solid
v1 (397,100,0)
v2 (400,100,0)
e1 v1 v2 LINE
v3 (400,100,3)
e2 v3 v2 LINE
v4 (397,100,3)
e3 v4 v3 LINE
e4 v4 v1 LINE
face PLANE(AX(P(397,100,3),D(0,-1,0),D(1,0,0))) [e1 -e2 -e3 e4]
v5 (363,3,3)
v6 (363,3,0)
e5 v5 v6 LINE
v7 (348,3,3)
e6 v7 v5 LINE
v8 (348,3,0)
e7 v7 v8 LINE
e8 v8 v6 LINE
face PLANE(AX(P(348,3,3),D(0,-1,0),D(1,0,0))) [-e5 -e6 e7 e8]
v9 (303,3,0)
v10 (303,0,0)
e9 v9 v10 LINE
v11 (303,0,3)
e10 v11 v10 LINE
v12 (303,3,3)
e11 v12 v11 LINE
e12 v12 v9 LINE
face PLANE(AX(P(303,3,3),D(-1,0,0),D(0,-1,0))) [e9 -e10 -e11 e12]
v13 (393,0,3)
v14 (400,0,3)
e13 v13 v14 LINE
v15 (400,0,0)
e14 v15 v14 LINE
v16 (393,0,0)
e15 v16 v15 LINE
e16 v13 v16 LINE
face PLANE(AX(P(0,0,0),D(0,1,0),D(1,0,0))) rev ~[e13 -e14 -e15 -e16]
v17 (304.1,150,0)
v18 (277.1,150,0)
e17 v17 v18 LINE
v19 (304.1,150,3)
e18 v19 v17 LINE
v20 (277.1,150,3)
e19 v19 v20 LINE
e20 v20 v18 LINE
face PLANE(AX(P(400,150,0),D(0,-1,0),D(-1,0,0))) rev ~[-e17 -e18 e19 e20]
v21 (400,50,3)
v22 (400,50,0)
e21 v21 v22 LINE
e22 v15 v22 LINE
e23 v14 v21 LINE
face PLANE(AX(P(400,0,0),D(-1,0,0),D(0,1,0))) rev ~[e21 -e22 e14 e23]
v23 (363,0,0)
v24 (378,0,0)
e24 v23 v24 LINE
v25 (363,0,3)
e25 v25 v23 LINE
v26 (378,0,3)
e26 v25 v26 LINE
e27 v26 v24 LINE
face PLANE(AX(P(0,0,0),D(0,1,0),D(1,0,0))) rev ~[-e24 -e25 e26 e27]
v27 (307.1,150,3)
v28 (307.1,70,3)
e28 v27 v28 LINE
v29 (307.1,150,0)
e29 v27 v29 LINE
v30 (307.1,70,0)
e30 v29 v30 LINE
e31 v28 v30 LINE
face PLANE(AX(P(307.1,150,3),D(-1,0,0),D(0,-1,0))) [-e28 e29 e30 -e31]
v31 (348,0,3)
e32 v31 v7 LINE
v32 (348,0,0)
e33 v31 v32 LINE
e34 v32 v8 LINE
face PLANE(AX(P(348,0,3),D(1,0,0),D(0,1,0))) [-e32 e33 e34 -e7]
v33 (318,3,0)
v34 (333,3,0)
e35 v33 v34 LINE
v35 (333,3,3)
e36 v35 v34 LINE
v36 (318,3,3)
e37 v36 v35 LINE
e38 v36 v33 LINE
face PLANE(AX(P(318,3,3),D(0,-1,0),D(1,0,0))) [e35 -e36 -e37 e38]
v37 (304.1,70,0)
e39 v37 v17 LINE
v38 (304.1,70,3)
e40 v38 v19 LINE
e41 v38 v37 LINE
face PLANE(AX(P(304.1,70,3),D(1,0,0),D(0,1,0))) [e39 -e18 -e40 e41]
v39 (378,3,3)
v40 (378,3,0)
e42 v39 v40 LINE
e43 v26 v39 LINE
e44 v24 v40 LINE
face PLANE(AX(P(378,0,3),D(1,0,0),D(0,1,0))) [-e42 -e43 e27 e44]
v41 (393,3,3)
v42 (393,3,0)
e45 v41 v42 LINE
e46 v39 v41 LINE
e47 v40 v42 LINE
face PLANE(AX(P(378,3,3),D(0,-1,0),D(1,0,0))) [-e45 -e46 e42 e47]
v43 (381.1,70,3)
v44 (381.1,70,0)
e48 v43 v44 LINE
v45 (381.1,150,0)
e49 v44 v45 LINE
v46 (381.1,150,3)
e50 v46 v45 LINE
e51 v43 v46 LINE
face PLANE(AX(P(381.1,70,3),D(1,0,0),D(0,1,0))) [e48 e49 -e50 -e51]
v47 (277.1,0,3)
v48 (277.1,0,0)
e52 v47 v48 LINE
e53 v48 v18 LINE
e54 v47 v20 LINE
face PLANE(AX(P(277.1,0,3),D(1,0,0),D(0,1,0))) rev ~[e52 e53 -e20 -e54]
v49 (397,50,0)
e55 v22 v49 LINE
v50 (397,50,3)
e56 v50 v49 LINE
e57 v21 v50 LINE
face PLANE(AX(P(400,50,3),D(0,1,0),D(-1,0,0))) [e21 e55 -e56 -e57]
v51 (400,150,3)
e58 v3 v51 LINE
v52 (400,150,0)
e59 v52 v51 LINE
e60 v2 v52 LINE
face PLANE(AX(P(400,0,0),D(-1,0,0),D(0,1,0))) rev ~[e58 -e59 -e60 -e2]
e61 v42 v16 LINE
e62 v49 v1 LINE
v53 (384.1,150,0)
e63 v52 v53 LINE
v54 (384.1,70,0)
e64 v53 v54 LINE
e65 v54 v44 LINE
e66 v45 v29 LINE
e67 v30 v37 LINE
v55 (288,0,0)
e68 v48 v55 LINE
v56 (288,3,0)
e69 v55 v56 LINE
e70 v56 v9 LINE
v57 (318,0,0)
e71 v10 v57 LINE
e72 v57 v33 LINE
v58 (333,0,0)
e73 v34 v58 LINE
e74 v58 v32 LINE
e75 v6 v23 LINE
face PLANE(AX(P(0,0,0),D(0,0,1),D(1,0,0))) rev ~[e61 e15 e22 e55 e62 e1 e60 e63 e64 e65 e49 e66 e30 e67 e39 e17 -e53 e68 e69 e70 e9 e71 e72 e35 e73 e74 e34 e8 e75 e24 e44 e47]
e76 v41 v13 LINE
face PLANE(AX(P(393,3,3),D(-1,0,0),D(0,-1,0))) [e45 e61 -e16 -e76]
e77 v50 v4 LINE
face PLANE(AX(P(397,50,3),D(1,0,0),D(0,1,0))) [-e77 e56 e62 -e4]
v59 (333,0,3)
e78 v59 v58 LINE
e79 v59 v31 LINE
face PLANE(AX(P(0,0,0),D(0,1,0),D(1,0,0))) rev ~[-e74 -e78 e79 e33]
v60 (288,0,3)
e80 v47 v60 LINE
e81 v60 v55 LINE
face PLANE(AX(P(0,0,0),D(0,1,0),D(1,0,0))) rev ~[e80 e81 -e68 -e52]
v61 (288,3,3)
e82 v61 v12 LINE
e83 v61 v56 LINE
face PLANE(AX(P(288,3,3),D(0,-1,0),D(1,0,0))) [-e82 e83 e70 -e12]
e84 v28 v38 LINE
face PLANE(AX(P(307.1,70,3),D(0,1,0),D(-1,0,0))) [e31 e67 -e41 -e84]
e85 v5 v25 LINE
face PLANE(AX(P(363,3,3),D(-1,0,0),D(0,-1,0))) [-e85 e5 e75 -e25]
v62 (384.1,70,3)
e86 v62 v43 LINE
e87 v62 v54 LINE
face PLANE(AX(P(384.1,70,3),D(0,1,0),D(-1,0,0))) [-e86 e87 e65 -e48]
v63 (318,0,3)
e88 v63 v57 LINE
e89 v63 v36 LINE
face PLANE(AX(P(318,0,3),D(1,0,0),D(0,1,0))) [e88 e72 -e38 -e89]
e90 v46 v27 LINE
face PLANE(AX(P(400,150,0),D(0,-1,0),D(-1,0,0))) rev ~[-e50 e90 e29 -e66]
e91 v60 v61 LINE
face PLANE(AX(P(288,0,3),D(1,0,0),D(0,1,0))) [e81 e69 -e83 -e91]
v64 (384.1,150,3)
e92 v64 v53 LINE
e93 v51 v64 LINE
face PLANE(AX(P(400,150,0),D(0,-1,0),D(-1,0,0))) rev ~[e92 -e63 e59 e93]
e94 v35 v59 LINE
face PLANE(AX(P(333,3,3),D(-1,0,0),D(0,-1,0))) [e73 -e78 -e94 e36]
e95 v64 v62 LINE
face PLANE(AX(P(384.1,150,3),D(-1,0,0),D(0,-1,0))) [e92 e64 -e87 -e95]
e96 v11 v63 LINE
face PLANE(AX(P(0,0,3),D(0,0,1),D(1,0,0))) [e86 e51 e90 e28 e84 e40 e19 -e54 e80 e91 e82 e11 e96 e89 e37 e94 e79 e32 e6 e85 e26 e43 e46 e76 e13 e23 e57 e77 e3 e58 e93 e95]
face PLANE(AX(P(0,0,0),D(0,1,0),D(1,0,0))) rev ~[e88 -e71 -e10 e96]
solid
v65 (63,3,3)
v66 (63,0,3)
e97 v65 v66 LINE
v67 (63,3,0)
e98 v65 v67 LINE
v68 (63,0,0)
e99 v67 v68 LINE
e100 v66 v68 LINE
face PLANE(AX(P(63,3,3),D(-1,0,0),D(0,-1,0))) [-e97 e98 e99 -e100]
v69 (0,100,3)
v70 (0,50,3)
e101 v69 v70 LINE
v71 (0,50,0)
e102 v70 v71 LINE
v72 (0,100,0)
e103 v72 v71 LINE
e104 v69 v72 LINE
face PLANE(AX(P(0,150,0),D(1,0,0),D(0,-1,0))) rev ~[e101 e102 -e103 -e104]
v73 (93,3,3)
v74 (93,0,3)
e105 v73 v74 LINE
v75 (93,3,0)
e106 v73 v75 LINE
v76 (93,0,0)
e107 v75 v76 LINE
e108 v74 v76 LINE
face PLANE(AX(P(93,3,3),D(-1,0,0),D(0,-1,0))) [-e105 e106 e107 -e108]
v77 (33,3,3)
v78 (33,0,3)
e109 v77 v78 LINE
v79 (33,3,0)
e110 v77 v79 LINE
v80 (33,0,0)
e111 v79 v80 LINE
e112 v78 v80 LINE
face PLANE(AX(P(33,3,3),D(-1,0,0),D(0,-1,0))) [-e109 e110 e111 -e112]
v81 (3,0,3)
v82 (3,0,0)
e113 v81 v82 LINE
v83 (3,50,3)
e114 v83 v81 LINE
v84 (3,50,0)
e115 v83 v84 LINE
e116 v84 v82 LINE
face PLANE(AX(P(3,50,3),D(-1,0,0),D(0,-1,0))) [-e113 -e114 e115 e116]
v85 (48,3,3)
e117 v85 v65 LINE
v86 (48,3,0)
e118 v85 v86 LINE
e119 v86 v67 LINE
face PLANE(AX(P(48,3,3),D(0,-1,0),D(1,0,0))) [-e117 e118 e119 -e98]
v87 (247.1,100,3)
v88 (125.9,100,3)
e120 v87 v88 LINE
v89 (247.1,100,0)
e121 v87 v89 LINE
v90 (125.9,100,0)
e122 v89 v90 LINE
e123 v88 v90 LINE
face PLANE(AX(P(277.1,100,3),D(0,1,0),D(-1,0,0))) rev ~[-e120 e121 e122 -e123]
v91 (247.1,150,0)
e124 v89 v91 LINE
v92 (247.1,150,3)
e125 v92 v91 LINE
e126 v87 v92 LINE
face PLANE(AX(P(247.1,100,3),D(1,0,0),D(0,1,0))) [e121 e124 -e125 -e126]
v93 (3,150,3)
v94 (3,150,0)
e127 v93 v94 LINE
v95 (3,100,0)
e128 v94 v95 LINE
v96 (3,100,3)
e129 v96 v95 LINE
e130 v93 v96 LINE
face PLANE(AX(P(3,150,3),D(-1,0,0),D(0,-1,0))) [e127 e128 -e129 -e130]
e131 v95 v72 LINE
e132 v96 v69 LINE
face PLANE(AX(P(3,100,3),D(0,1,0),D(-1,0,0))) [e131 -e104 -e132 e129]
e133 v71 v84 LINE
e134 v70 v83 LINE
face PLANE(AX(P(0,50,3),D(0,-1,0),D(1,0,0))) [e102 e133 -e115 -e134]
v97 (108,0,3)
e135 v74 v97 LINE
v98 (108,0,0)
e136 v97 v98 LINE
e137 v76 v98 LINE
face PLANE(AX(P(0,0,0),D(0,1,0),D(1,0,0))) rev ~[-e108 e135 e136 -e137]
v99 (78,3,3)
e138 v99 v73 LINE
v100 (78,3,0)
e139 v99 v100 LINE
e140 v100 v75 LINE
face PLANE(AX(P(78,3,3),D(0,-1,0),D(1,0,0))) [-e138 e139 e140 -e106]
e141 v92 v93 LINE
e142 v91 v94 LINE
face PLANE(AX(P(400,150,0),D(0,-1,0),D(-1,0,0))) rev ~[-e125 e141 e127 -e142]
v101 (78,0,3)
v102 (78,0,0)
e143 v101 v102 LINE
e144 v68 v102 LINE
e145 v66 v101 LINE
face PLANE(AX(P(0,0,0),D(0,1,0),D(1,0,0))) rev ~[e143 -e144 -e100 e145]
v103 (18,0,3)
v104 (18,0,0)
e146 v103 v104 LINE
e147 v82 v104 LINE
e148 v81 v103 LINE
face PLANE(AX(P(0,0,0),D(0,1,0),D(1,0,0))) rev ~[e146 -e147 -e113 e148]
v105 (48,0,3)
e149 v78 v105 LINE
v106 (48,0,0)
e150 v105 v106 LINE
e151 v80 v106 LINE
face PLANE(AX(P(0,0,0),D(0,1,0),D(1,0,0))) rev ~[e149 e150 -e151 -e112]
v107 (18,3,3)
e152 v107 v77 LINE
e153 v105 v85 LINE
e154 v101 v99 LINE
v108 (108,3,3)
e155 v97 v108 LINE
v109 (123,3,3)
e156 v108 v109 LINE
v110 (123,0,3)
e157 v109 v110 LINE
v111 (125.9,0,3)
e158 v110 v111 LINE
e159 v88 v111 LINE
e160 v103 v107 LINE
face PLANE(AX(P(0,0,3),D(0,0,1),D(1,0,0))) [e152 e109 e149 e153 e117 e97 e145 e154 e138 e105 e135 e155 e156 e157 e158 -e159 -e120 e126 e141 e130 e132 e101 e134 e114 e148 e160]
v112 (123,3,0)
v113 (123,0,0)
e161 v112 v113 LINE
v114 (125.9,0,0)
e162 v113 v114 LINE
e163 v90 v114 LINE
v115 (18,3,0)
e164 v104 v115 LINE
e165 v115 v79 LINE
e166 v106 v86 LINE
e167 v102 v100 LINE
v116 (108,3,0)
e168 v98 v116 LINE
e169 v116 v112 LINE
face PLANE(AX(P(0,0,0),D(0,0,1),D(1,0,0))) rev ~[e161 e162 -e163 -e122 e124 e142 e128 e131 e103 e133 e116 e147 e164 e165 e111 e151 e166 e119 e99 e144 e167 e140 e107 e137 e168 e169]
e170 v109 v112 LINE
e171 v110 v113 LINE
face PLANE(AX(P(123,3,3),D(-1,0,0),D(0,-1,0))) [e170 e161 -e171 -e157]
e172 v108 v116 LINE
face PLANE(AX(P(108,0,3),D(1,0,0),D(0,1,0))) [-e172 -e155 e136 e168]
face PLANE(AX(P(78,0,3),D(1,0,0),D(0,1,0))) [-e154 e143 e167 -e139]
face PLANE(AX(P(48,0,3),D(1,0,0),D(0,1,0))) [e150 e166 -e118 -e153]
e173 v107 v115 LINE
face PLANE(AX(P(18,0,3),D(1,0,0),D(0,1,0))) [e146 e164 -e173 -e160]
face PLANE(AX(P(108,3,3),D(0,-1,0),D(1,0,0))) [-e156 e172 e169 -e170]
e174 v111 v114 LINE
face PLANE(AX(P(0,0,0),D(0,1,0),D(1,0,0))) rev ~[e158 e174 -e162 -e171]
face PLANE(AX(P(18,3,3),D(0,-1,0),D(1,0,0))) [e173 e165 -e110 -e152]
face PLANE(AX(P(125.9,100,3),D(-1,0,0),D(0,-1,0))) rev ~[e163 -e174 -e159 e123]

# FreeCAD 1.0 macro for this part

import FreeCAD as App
import Part
import Sketcher

V = App.Vector

doc = App.newDocument("Part")
body = doc.addObject("PartDesign::Body", "Body")
body.AllowCompound = True

sketch1 = body.newObject("Sketcher::SketchObject", "Sketch")
sketch1.AttachmentSupport = (doc.getObject("XY_Plane"), [""])
sketch1.MapMode = "FlatFace"
sketch1.addGeometry([
    Part.LineSegment(V(0, 150, 0), V(0, 0, 0)),
    Part.LineSegment(V(0, 0, 0), V(400, 0, 0)),
    Part.LineSegment(V(400, 0, 0), V(400, 150, 0)),
    Part.LineSegment(V(400, 150, 0), V(0, 150, 0)),
], False)
sketch1.addConstraint([
    Sketcher.Constraint("Coincident", 0, 2, 1, 1),
    Sketcher.Constraint("Coincident", 1, 2, 2, 1),
    Sketcher.Constraint("Coincident", 2, 2, 3, 1),
    Sketcher.Constraint("Coincident", 3, 2, 0, 1),
    Sketcher.Constraint("Vertical", 0),
    Sketcher.Constraint("Horizontal", 1),
    Sketcher.Constraint("Vertical", 2),
    Sketcher.Constraint("Horizontal", 3),
    Sketcher.Constraint("Coincident", 0, 2, -1, 1),
    Sketcher.Constraint("DistanceX", 1, 1, 1, 2, 400.0),
    Sketcher.Constraint("DistanceY", 0, 2, 0, 1, 150.0),
])
pad1 = body.newObject("PartDesign::Pad", "Pad")
pad1.Profile = sketch1
pad1.Length = 3

sketch2 = body.newObject("Sketcher::SketchObject", "Sketch001")
sketch2.AttachmentSupport = (doc.getObject("XY_Plane"), [""])
sketch2.MapMode = "FlatFace"
sketch2.AttachmentOffset = App.Placement(V(0, 0, 3), App.Rotation())
sketch2.addGeometry([
    Part.LineSegment(V(3, 50, 0), V(0, 50, 0)),
    Part.LineSegment(V(0, 50, 0), V(0, 0, 0)),
    Part.LineSegment(V(0, 0, 0), V(3, 0, 0)),
    Part.LineSegment(V(3, 0, 0), V(3, 50, 0)),
    Part.LineSegment(V(0, 150, 0), V(0, 100, 0)),
    Part.LineSegment(V(0, 100, 0), V(3, 100, 0)),
    Part.LineSegment(V(3, 100, 0), V(3, 150, 0)),
    Part.LineSegment(V(3, 150, 0), V(0, 150, 0)),
    Part.LineSegment(V(400, 100, 0), V(397, 100, 0)),
    Part.LineSegment(V(397, 100, 0), V(397, 50, 0)),
    Part.LineSegment(V(397, 50, 0), V(400, 50, 0)),
    Part.LineSegment(V(400, 50, 0), V(400, 100, 0)),
], False)
sketch2.addConstraint([
    Sketcher.Constraint("Coincident", 0, 2, 1, 1),
    Sketcher.Constraint("Coincident", 1, 2, 2, 1),
    Sketcher.Constraint("Coincident", 2, 2, 3, 1),
    Sketcher.Constraint("Coincident", 3, 2, 0, 1),
    Sketcher.Constraint("Coincident", 4, 2, 5, 1),
    Sketcher.Constraint("Coincident", 5, 2, 6, 1),
    Sketcher.Constraint("Coincident", 6, 2, 7, 1),
    Sketcher.Constraint("Coincident", 7, 2, 4, 1),
    Sketcher.Constraint("Coincident", 8, 2, 9, 1),
    Sketcher.Constraint("Coincident", 9, 2, 10, 1),
    Sketcher.Constraint("Coincident", 10, 2, 11, 1),
    Sketcher.Constraint("Coincident", 11, 2, 8, 1),
    Sketcher.Constraint("Horizontal", 0),
    Sketcher.Constraint("Vertical", 1),
    Sketcher.Constraint("Horizontal", 2),
    Sketcher.Constraint("Vertical", 3),
    Sketcher.Constraint("Vertical", 4),
    Sketcher.Constraint("Horizontal", 5),
    Sketcher.Constraint("Vertical", 6),
    Sketcher.Constraint("Horizontal", 7),
    Sketcher.Constraint("Horizontal", 8),
    Sketcher.Constraint("Vertical", 9),
    Sketcher.Constraint("Horizontal", 10),
    Sketcher.Constraint("Vertical", 11),
    Sketcher.Constraint("Coincident", 1, 2, -1, 1),
    Sketcher.Constraint("PointOnObject", 4, 2, -2),
    Sketcher.Constraint("Horizontal", 5, 2, 8, 2),
    Sketcher.Constraint("Horizontal", 3, 2, 9, 2),
    Sketcher.Constraint("Vertical", 3, 2, 5, 2),
    Sketcher.Constraint("Equal", 7, 8),
    Sketcher.Constraint("Equal", 3, 4),
    Sketcher.Constraint("Equal", 6, 9),
    Sketcher.Constraint("DistanceX", 0, 2, 0, 1, 3.0),
    Sketcher.Constraint("DistanceY", 1, 2, 1, 1, 50.0),
    Sketcher.Constraint("DistanceX", -1, 1, 8, 2, 397.0),
])
pocket1 = body.newObject("PartDesign::Pocket", "Pocket")
pocket1.Profile = sketch2
pocket1.Length = 3

sketch3 = body.newObject("Sketcher::SketchObject", "Sketch002")
sketch3.AttachmentSupport = (doc.getObject("XY_Plane"), [""])
sketch3.MapMode = "FlatFace"
sketch3.AttachmentOffset = App.Placement(V(0, 0, 3), App.Rotation())
sketch3.addGeometry([
    Part.LineSegment(V(277, 0, 0), V(277, 100, 0)),
    Part.LineSegment(V(277, 100, 0), V(126, 100, 0)),
    Part.LineSegment(V(126, 100, 0), V(126, 0, 0)),
    Part.LineSegment(V(126, 0, 0), V(277, 0, 0)),
], False)
sketch3.addConstraint([
    Sketcher.Constraint("Coincident", 0, 2, 1, 1),
    Sketcher.Constraint("Coincident", 1, 2, 2, 1),
    Sketcher.Constraint("Coincident", 2, 2, 3, 1),
    Sketcher.Constraint("Coincident", 3, 2, 0, 1),
    Sketcher.Constraint("Vertical", 0),
    Sketcher.Constraint("Horizontal", 1),
    Sketcher.Constraint("Vertical", 2),
    Sketcher.Constraint("Horizontal", 3),
    Sketcher.Constraint("PointOnObject", 2, 2, -1),
    Sketcher.Constraint("DistanceY", 0, 1, 0, 2, 100.0),
    Sketcher.Constraint("DistanceX", 1, 2, 1, 1, 151.2),
    Sketcher.Constraint("DistanceX", -1, 1, 0, 2, 277.1),
])
pocket2 = body.newObject("PartDesign::Pocket", "Pocket001")
pocket2.Profile = sketch3
pocket2.Length = 10

sketch4 = body.newObject("Sketcher::SketchObject", "Sketch003")
sketch4.AttachmentSupport = (doc.getObject("XY_Plane"), [""])
sketch4.MapMode = "FlatFace"
sketch4.AttachmentOffset = App.Placement(V(0, 0, 3), App.Rotation())
sketch4.addGeometry([
    Part.LineSegment(V(307.1, 150, 0), V(304.1, 150, 0)),
    Part.LineSegment(V(304.1, 150, 0), V(304.1, 70, 0)),
    Part.LineSegment(V(304.1, 70, 0), V(307.1, 70, 0)),
    Part.LineSegment(V(307.1, 70, 0), V(307.1, 150, 0)),
    Part.LineSegment(V(384.1, 150, 0), V(381.1, 150, 0)),
    Part.LineSegment(V(381.1, 150, 0), V(381.1, 70, 0)),
    Part.LineSegment(V(381.1, 70, 0), V(384.1, 70, 0)),
    Part.LineSegment(V(384.1, 70, 0), V(384.1, 150, 0)),
], False)
sketch4.addConstraint([
    Sketcher.Constraint("Coincident", 0, 2, 1, 1),
    Sketcher.Constraint("Coincident", 1, 2, 2, 1),
    Sketcher.Constraint("Coincident", 2, 2, 3, 1),
    Sketcher.Constraint("Coincident", 3, 2, 0, 1),
    Sketcher.Constraint("Coincident", 4, 2, 5, 1),
    Sketcher.Constraint("Coincident", 5, 2, 6, 1),
    Sketcher.Constraint("Coincident", 6, 2, 7, 1),
    Sketcher.Constraint("Coincident", 7, 2, 4, 1),
    Sketcher.Constraint("Horizontal", 0),
    Sketcher.Constraint("Vertical", 1),
    Sketcher.Constraint("Horizontal", 2),
    Sketcher.Constraint("Vertical", 3),
    Sketcher.Constraint("Horizontal", 4),
    Sketcher.Constraint("Vertical", 5),
    Sketcher.Constraint("Horizontal", 6),
    Sketcher.Constraint("Vertical", 7),
    Sketcher.Constraint("Horizontal", 3, 2, 4, 2),
    Sketcher.Constraint("Horizontal", 2, 2, 5, 2),
    Sketcher.Constraint("Equal", 2, 4),
    Sketcher.Constraint("DistanceX", 0, 2, 0, 1, 3.0),
    Sketcher.Constraint("DistanceY", 1, 2, 1, 1, 80.0),
    Sketcher.Constraint("DistanceX", 3, 2, 4, 2, 74.0),
    Sketcher.Constraint("DistanceY", -1, 1, 0, 2, 150.0),
    Sketcher.Constraint("DistanceX", -1, 1, 0, 2, 304.1),
])
pocket3 = body.newObject("PartDesign::Pocket", "Pocket002")
pocket3.Profile = sketch4
pocket3.Length = 10

sketch5 = body.newObject("Sketcher::SketchObject", "Sketch004")
sketch5.AttachmentSupport = (doc.getObject("XY_Plane"), [""])
sketch5.MapMode = "FlatFace"
sketch5.AttachmentOffset = App.Placement(V(0, 0, 3), App.Rotation())
sketch5.addGeometry([
    Part.LineSegment(V(247, 100, 0), V(277, 100, 0)),
    Part.LineSegment(V(277, 100, 0), V(277, 150, 0)),
    Part.LineSegment(V(277, 150, 0), V(247, 150, 0)),
    Part.LineSegment(V(247, 150, 0), V(247, 100, 0)),
], False)
sketch5.addConstraint([
    Sketcher.Constraint("Coincident", 0, 2, 1, 1),
    Sketcher.Constraint("Coincident", 1, 2, 2, 1),
    Sketcher.Constraint("Coincident", 2, 2, 3, 1),
    Sketcher.Constraint("Coincident", 3, 2, 0, 1),
    Sketcher.Constraint("Horizontal", 0),
    Sketcher.Constraint("Vertical", 1),
    Sketcher.Constraint("Horizontal", 2),
    Sketcher.Constraint("Vertical", 3),
    Sketcher.Constraint("DistanceX", 0, 1, 0, 2, 30.0),
    Sketcher.Constraint("DistanceY", 1, 1, 1, 2, 50.0),
    Sketcher.Constraint("DistanceY", -1, 1, 0, 2, 100.0),
    Sketcher.Constraint("DistanceX", -1, 1, 0, 2, 277.1),
])
pocket4 = body.newObject("PartDesign::Pocket", "Pocket003")
pocket4.Profile = sketch5
pocket4.Length = 10

sketch6 = body.newObject("Sketcher::SketchObject", "Sketch005")
sketch6.AttachmentSupport = (doc.getObject("XY_Plane"), [""])
sketch6.MapMode = "FlatFace"
sketch6.AttachmentOffset = App.Placement(V(0, 0, 3), App.Rotation())
sketch6.addGeometry([
    Part.LineSegment(V(33, 3, 0), V(18, 3, 0)),
    Part.LineSegment(V(18, 3, 0), V(18, 0, 0)),
    Part.LineSegment(V(18, 0, 0), V(33, 0, 0)),
    Part.LineSegment(V(33, 0, 0), V(33, 3, 0)),
    Part.LineSegment(V(48, 0, 0), V(63, 0, 0)),
    Part.LineSegment(V(63, 0, 0), V(63, 3, 0)),
    Part.LineSegment(V(63, 3, 0), V(48, 3, 0)),
    Part.LineSegment(V(48, 3, 0), V(48, 0, 0)),
    Part.LineSegment(V(78, 0, 0), V(93, 0, 0)),
    Part.LineSegment(V(93, 0, 0), V(93, 3, 0)),
    Part.LineSegment(V(93, 3, 0), V(78, 3, 0)),
    Part.LineSegment(V(78, 3, 0), V(78, 0, 0)),
    Part.LineSegment(V(108, 0, 0), V(123, 0, 0)),
    Part.LineSegment(V(123, 0, 0), V(123, 3, 0)),
    Part.LineSegment(V(123, 3, 0), V(108, 3, 0)),
    Part.LineSegment(V(108, 3, 0), V(108, 0, 0)),
    Part.LineSegment(V(138, 0, 0), V(153, 0, 0)),
    Part.LineSegment(V(153, 0, 0), V(153, 3, 0)),
    Part.LineSegment(V(153, 3, 0), V(138, 3, 0)),
    Part.LineSegment(V(138, 3, 0), V(138, 0, 0)),
    Part.LineSegment(V(168, 0, 0), V(183, 0, 0)),
    Part.LineSegment(V(183, 0, 0), V(183, 3, 0)),
    Part.LineSegment(V(183, 3, 0), V(168, 3, 0)),
    Part.LineSegment(V(168, 3, 0), V(168, 0, 0)),
    Part.LineSegment(V(198, 0, 0), V(213, 0, 0)),
    Part.LineSegment(V(213, 0, 0), V(213, 3, 0)),
    Part.LineSegment(V(213, 3, 0), V(198, 3, 0)),
    Part.LineSegment(V(198, 3, 0), V(198, 0, 0)),
    Part.LineSegment(V(228, 0, 0), V(243, 0, 0)),
    Part.LineSegment(V(243, 0, 0), V(243, 3, 0)),
    Part.LineSegment(V(243, 3, 0), V(228, 3, 0)),
    Part.LineSegment(V(228, 3, 0), V(228, 0, 0)),
    Part.LineSegment(V(258, 0, 0), V(273, 0, 0)),
    Part.LineSegment(V(273, 0, 0), V(273, 3, 0)),
    Part.LineSegment(V(273, 3, 0), V(258, 3, 0)),
    Part.LineSegment(V(258, 3, 0), V(258, 0, 0)),
    Part.LineSegment(V(288, 0, 0), V(303, 0, 0)),
    Part.LineSegment(V(303, 0, 0), V(303, 3, 0)),
    Part.LineSegment(V(303, 3, 0), V(288, 3, 0)),
    Part.LineSegment(V(288, 3, 0), V(288, 0, 0)),
    Part.LineSegment(V(318, 0, 0), V(333, 0, 0)),
    Part.LineSegment(V(333, 0, 0), V(333, 3, 0)),
    Part.LineSegment(V(333, 3, 0), V(318, 3, 0)),
    Part.LineSegment(V(318, 3, 0), V(318, 0, 0)),
    Part.LineSegment(V(348, 0, 0), V(363, 0, 0)),
    Part.LineSegment(V(363, 0, 0), V(363, 3, 0)),
    Part.LineSegment(V(363, 3, 0), V(348, 3, 0)),
    Part.LineSegment(V(348, 3, 0), V(348, 0, 0)),
    Part.LineSegment(V(378, 0, 0), V(393, 0, 0)),
    Part.LineSegment(V(393, 0, 0), V(393, 3, 0)),
    Part.LineSegment(V(393, 3, 0), V(378, 3, 0)),
    Part.LineSegment(V(378, 3, 0), V(378, 0, 0)),
], False)
sketch6.addConstraint([
    Sketcher.Constraint("Coincident", 0, 2, 1, 1),
    Sketcher.Constraint("Coincident", 1, 2, 2, 1),
    Sketcher.Constraint("Coincident", 2, 2, 3, 1),
    Sketcher.Constraint("Coincident", 3, 2, 0, 1),
    Sketcher.Constraint("Coincident", 4, 2, 5, 1),
    Sketcher.Constraint("Coincident", 5, 2, 6, 1),
    Sketcher.Constraint("Coincident", 6, 2, 7, 1),
    Sketcher.Constraint("Coincident", 7, 2, 4, 1),
    Sketcher.Constraint("Coincident", 8, 2, 9, 1),
    Sketcher.Constraint("Coincident", 9, 2, 10, 1),
    Sketcher.Constraint("Coincident", 10, 2, 11, 1),
    Sketcher.Constraint("Coincident", 11, 2, 8, 1),
    Sketcher.Constraint("Coincident", 12, 2, 13, 1),
    Sketcher.Constraint("Coincident", 13, 2, 14, 1),
    Sketcher.Constraint("Coincident", 14, 2, 15, 1),
    Sketcher.Constraint("Coincident", 15, 2, 12, 1),
    Sketcher.Constraint("Coincident", 16, 2, 17, 1),
    Sketcher.Constraint("Coincident", 17, 2, 18, 1),
    Sketcher.Constraint("Coincident", 18, 2, 19, 1),
    Sketcher.Constraint("Coincident", 19, 2, 16, 1),
    Sketcher.Constraint("Coincident", 20, 2, 21, 1),
    Sketcher.Constraint("Coincident", 21, 2, 22, 1),
    Sketcher.Constraint("Coincident", 22, 2, 23, 1),
    Sketcher.Constraint("Coincident", 23, 2, 20, 1),
    Sketcher.Constraint("Coincident", 24, 2, 25, 1),
    Sketcher.Constraint("Coincident", 25, 2, 26, 1),
    Sketcher.Constraint("Coincident", 26, 2, 27, 1),
    Sketcher.Constraint("Coincident", 27, 2, 24, 1),
    Sketcher.Constraint("Coincident", 28, 2, 29, 1),
    Sketcher.Constraint("Coincident", 29, 2, 30, 1),
    Sketcher.Constraint("Coincident", 30, 2, 31, 1),
    Sketcher.Constraint("Coincident", 31, 2, 28, 1),
    Sketcher.Constraint("Coincident", 32, 2, 33, 1),
    Sketcher.Constraint("Coincident", 33, 2, 34, 1),
    Sketcher.Constraint("Coincident", 34, 2, 35, 1),
    Sketcher.Constraint("Coincident", 35, 2, 32, 1),
    Sketcher.Constraint("Coincident", 36, 2, 37, 1),
    Sketcher.Constraint("Coincident", 37, 2, 38, 1),
    Sketcher.Constraint("Coincident", 38, 2, 39, 1),
    Sketcher.Constraint("Coincident", 39, 2, 36, 1),
    Sketcher.Constraint("Coincident", 40, 2, 41, 1),
    Sketcher.Constraint("Coincident", 41, 2, 42, 1),
    Sketcher.Constraint("Coincident", 42, 2, 43, 1),
    Sketcher.Constraint("Coincident", 43, 2, 40, 1),
    Sketcher.Constraint("Coincident", 44, 2, 45, 1),
    Sketcher.Constraint("Coincident", 45, 2, 46, 1),
    Sketcher.Constraint("Coincident", 46, 2, 47, 1),
    Sketcher.Constraint("Coincident", 47, 2, 44, 1),
    Sketcher.Constraint("Coincident", 48, 2, 49, 1),
    Sketcher.Constraint("Coincident", 49, 2, 50, 1),
    Sketcher.Constraint("Coincident", 50, 2, 51, 1),
    Sketcher.Constraint("Coincident", 51, 2, 48, 1),
    Sketcher.Constraint("Horizontal", 0),
    Sketcher.Constraint("Vertical", 1),
    Sketcher.Constraint("Horizontal", 2),
    Sketcher.Constraint("Vertical", 3),
    Sketcher.Constraint("Horizontal", 4),
    Sketcher.Constraint("Vertical", 5),
    Sketcher.Constraint("Horizontal", 6),
    Sketcher.Constraint("Vertical", 7),
    Sketcher.Constraint("Horizontal", 8),
    Sketcher.Constraint("Vertical", 9),
    Sketcher.Constraint("Horizontal", 10),
    Sketcher.Constraint("Vertical", 11),
    Sketcher.Constraint("Horizontal", 12),
    Sketcher.Constraint("Vertical", 13),
    Sketcher.Constraint("Horizontal", 14),
    Sketcher.Constraint("Vertical", 15),
    Sketcher.Constraint("Horizontal", 16),
    Sketcher.Constraint("Vertical", 17),
    Sketcher.Constraint("Horizontal", 18),
    Sketcher.Constraint("Vertical", 19),
    Sketcher.Constraint("Horizontal", 20),
    Sketcher.Constraint("Vertical", 21),
    Sketcher.Constraint("Horizontal", 22),
    Sketcher.Constraint("Vertical", 23),
    Sketcher.Constraint("Horizontal", 24),
    Sketcher.Constraint("Vertical", 25),
    Sketcher.Constraint("Horizontal", 26),
    Sketcher.Constraint("Vertical", 27),
    Sketcher.Constraint("Horizontal", 28),
    Sketcher.Constraint("Vertical", 29),
    Sketcher.Constraint("Horizontal", 30),
    Sketcher.Constraint("Vertical", 31),
    Sketcher.Constraint("Horizontal", 32),
    Sketcher.Constraint("Vertical", 33),
    Sketcher.Constraint("Horizontal", 34),
    Sketcher.Constraint("Vertical", 35),
    Sketcher.Constraint("Horizontal", 36),
    Sketcher.Constraint("Vertical", 37),
    Sketcher.Constraint("Horizontal", 38),
    Sketcher.Constraint("Vertical", 39),
    Sketcher.Constraint("Horizontal", 40),
    Sketcher.Constraint("Vertical", 41),
    Sketcher.Constraint("Horizontal", 42),
    Sketcher.Constraint("Vertical", 43),
    Sketcher.Constraint("Horizontal", 44),
    Sketcher.Constraint("Vertical", 45),
    Sketcher.Constraint("Horizontal", 46),
    Sketcher.Constraint("Vertical", 47),
    Sketcher.Constraint("Horizontal", 48),
    Sketcher.Constraint("Vertical", 49),
    Sketcher.Constraint("Horizontal", 50),
    Sketcher.Constraint("Vertical", 51),
    Sketcher.Constraint("PointOnObject", 1, 2, -1),
    Sketcher.Constraint("PointOnObject", 4, 2, -1),
    Sketcher.Constraint("PointOnObject", 8, 2, -1),
    Sketcher.Constraint("PointOnObject", 12, 2, -1),
    Sketcher.Constraint("PointOnObject", 16, 2, -1),
    Sketcher.Constraint("PointOnObject", 20, 2, -1),
    Sketcher.Constraint("PointOnObject", 24, 2, -1),
    Sketcher.Constraint("PointOnObject", 28, 2, -1),
    Sketcher.Constraint("PointOnObject", 32, 2, -1),
    Sketcher.Constraint("PointOnObject", 36, 2, -1),
    Sketcher.Constraint("PointOnObject", 40, 2, -1),
    Sketcher.Constraint("PointOnObject", 44, 2, -1),
    Sketcher.Constraint("PointOnObject", 48, 2, -1),
    Sketcher.Constraint("Horizontal", 3, 2, 5, 2),
    Sketcher.Constraint("Horizontal", 6, 2, 9, 2),
    Sketcher.Constraint("Horizontal", 10, 2, 13, 2),
    Sketcher.Constraint("Horizontal", 14, 2, 17, 2),
    Sketcher.Constraint("Horizontal", 18, 2, 21, 2),
    Sketcher.Constraint("Horizontal", 22, 2, 25, 2),
    Sketcher.Constraint("Horizontal", 26, 2, 29, 2),
    Sketcher.Constraint("Horizontal", 30, 2, 33, 2),
    Sketcher.Constraint("Horizontal", 34, 2, 37, 2),
    Sketcher.Constraint("Horizontal", 38, 2, 41, 2),
    Sketcher.Constraint("Horizontal", 42, 2, 45, 2),
    Sketcher.Constraint("Horizontal", 46, 2, 49, 2),
    Sketcher.Constraint("Equal", 2, 4),
    Sketcher.Constraint("Equal", 6, 8),
    Sketcher.Constraint("Equal", 10, 12),
    Sketcher.Constraint("Equal", 14, 16),
    Sketcher.Constraint("Equal", 18, 20),
    Sketcher.Constraint("Equal", 22, 24),
    Sketcher.Constraint("Equal", 26, 28),
    Sketcher.Constraint("Equal", 30, 32),
    Sketcher.Constraint("Equal", 34, 36),
    Sketcher.Constraint("Equal", 38, 40),
    Sketcher.Constraint("Equal", 42, 44),
    Sketcher.Constraint("Equal", 46, 48),
    Sketcher.Constraint("DistanceX", 0, 2, 0, 1, 15.0),
    Sketcher.Constraint("DistanceY", 1, 2, 1, 1, 3.0),
    Sketcher.Constraint("DistanceX", 2, 2, 4, 2, 30.0),
    Sketcher.Constraint("DistanceX", 4, 2, 8, 2, 30.0),
    Sketcher.Constraint("DistanceX", 8, 2, 12, 2, 30.0),
    Sketcher.Constraint("DistanceX", 12, 2, 16, 2, 30.0),
    Sketcher.Constraint("DistanceX", 16, 2, 20, 2, 30.0),
    Sketcher.Constraint("DistanceX", 20, 2, 24, 2, 30.0),
    Sketcher.Constraint("DistanceX", 24, 2, 28, 2, 30.0),
    Sketcher.Constraint("DistanceX", 28, 2, 32, 2, 30.0),
    Sketcher.Constraint("DistanceX", 32, 2, 36, 2, 30.0),
    Sketcher.Constraint("DistanceX", 36, 2, 40, 2, 30.0),
    Sketcher.Constraint("DistanceX", 40, 2, 44, 2, 30.0),
    Sketcher.Constraint("DistanceX", 44, 2, 48, 2, 30.0),
    Sketcher.Constraint("DistanceX", -1, 1, 0, 2, 18.0),
])
pocket5 = body.newObject("PartDesign::Pocket", "Pocket004")
pocket5.Profile = sketch6
pocket5.Length = 10

doc.recompute()
